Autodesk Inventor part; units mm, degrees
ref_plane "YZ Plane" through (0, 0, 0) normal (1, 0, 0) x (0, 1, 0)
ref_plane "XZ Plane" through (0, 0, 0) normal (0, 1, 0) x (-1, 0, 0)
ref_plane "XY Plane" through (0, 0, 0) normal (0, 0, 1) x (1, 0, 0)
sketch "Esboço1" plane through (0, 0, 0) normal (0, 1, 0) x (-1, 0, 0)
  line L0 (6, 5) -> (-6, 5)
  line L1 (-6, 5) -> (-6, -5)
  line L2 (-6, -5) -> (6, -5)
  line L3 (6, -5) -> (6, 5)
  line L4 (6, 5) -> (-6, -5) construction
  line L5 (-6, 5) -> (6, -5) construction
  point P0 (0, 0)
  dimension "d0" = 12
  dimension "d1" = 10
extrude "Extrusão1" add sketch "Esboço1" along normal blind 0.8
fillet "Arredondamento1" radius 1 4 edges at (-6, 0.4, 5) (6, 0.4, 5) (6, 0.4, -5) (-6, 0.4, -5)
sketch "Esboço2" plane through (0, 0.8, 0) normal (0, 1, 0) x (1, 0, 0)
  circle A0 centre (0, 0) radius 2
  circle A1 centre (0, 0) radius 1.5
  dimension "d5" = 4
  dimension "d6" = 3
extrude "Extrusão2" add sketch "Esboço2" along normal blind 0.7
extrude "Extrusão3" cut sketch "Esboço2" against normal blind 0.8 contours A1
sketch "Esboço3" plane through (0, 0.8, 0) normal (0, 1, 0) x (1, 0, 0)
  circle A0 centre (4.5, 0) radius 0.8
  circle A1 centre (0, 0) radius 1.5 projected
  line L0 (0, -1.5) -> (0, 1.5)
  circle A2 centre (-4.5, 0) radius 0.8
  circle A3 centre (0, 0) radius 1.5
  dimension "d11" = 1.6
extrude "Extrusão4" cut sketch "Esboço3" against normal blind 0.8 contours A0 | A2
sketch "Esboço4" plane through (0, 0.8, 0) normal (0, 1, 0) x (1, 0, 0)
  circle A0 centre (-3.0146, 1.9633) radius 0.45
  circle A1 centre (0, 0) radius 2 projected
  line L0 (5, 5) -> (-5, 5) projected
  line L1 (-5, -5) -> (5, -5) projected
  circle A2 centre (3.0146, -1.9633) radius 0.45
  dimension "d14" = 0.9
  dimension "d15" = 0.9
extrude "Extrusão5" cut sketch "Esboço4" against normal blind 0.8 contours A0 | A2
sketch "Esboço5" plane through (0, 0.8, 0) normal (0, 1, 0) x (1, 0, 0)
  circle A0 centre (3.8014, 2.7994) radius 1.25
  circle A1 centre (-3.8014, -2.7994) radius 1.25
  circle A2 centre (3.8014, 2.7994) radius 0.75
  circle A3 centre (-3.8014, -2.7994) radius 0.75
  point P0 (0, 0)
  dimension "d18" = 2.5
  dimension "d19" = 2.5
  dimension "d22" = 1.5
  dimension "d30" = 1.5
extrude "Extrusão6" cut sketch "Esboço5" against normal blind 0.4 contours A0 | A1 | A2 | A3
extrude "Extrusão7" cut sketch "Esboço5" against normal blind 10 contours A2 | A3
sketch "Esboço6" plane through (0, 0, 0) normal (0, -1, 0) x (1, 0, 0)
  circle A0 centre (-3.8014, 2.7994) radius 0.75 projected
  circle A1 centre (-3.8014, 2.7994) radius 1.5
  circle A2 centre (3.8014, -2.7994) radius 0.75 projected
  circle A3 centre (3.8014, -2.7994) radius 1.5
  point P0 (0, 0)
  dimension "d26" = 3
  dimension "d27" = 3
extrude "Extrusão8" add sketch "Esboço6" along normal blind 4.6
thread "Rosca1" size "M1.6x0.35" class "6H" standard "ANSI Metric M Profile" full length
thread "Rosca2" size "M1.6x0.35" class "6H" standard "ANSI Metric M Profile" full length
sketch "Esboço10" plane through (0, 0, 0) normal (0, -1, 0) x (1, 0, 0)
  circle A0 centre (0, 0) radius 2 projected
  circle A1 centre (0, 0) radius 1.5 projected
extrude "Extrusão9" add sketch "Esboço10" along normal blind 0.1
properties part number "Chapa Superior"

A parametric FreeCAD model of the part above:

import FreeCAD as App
import Part
import Sketcher


def edges_at(feature, points):
    """Names of the edges that pass closest to the given points."""
    edges = feature.Shape.Edges
    near = lambda p: min(range(len(edges)), key=lambda i: edges[i].distToShape(Part.Vertex(*p))[0])
    return sorted({f"Edge{near(p) + 1}" for p in points})


def add_polygon(sketch, points):
    """Adds a closed chain of lines whose ends are joined by coincident constraints."""
    first, n = sketch.GeometryCount, len(points)
    for a, b in zip(points, points[1:] + points[:1]):
        sketch.addGeometry(Part.LineSegment(App.Vector(*a, 0), App.Vector(*b, 0)), False)
    for i in range(n):
        sketch.addConstraint(Sketcher.Constraint("Coincident", first + i, 2, first + (i + 1) % n, 1))

doc = App.newDocument("Part")
body = doc.addObject("PartDesign::Body", "Body")

sketch1 = body.newObject("Sketcher::SketchObject", "Sketch")
sketch1.AttachmentSupport = (doc.getObject("XZ_Plane"), [""])
sketch1.MapMode = "FlatFace"
add_polygon(sketch1, [(-6, -5), (-6, 5), (6, 5), (6, -5)])
sketch1.addConstraint([
    Sketcher.Constraint("Vertical", 0),
    Sketcher.Constraint("Horizontal", 1),
    Sketcher.Constraint("Vertical", 2),
    Sketcher.Constraint("Horizontal", 3),
    Sketcher.Constraint("Symmetric", 0, 2, 2, 2, -1, 1),
    Sketcher.Constraint("DistanceX", 1, 1, 1, 2, 12.0),
    Sketcher.Constraint("DistanceY", 0, 1, 0, 2, 10.0),
])
pad1 = body.newObject("PartDesign::Pad", "Pad")
pad1.Profile = sketch1
pad1.Length = 0.8
pad1.Reversed = True
doc.recompute()

fillet = body.newObject("PartDesign::Fillet", "Fillet")
fillet.Base = (pad1, edges_at(pad1, [
    (-6, 0.4, 5),
    (6, 0.4, 5),
    (6, 0.4, -5),
    (-6, 0.4, -5),
]))
fillet.Radius = 1

sketch2 = body.newObject("Sketcher::SketchObject", "Sketch001")
sketch2.AttachmentSupport = (doc.getObject("XZ_Plane"), [""])
sketch2.MapMode = "FlatFace"
sketch2.AttachmentOffset = App.Placement(App.Vector(0, 0, -0.8), App.Rotation())
sketch2.addGeometry([
    Part.Circle(App.Vector(0, 0, 0), App.Vector(0, 0, 1), 2),
    Part.Circle(App.Vector(0, 0, 0), App.Vector(0, 0, 1), 1.5),
], False)
sketch2.addConstraint([
    Sketcher.Constraint("Coincident", 0, 3, -1, 1),
    Sketcher.Constraint("Coincident", 1, 3, -1, 1),
    Sketcher.Constraint("Diameter", 0, 4.0),
    Sketcher.Constraint("Diameter", 1, 3.0),
])
pad2 = body.newObject("PartDesign::Pad", "Pad001")
pad2.Profile = sketch2
pad2.Length = 0.7
pad2.Reversed = True

sketch3 = body.newObject("Sketcher::SketchObject", "Sketch002")
sketch3.AttachmentSupport = (doc.getObject("XZ_Plane"), [""])
sketch3.MapMode = "FlatFace"
sketch3.AttachmentOffset = App.Placement(App.Vector(0, 0, -0.8), App.Rotation())
sketch3.addGeometry(Part.Circle(App.Vector(0, 0, 0), App.Vector(0, 0, 1), 1.5), False)
sketch3.addConstraint([
    Sketcher.Constraint("Coincident", 0, 3, -1, 1),
    Sketcher.Constraint("Diameter", 0, 3.0),
])
pocket1 = body.newObject("PartDesign::Pocket", "Pocket")
pocket1.Profile = sketch3
pocket1.Length = 0.8
pocket1.Reversed = True

sketch4 = body.newObject("Sketcher::SketchObject", "Sketch003")
sketch4.AttachmentSupport = (doc.getObject("XZ_Plane"), [""])
sketch4.MapMode = "FlatFace"
sketch4.AttachmentOffset = App.Placement(App.Vector(0, 0, -0.8), App.Rotation())
sketch4.addGeometry([
    Part.Circle(App.Vector(4.5, 0, 0), App.Vector(0, 0, 1), 0.8),
    Part.Circle(App.Vector(-4.5, 0, 0), App.Vector(0, 0, 1), 0.8),
], False)
sketch4.addConstraint([
    Sketcher.Constraint("Equal", 0, 1),
    Sketcher.Constraint("Symmetric", 0, 3, 1, 3, -1, 1),
    Sketcher.Constraint("PointOnObject", 0, 3, -1),
    Sketcher.Constraint("Diameter", 0, 1.6),
    Sketcher.Constraint("DistanceX", 1, 3, 0, 3, 9.0),
])
pocket2 = body.newObject("PartDesign::Pocket", "Pocket001")
pocket2.Profile = sketch4
pocket2.Length = 0.8
pocket2.Reversed = True

sketch5 = body.newObject("Sketcher::SketchObject", "Sketch004")
sketch5.AttachmentSupport = (doc.getObject("XZ_Plane"), [""])
sketch5.MapMode = "FlatFace"
sketch5.AttachmentOffset = App.Placement(App.Vector(0, 0, -0.8), App.Rotation())
sketch5.addGeometry([
    Part.Circle(App.Vector(-3.0146, -1.9633, 0), App.Vector(0, 0, 1), 0.45),
    Part.Circle(App.Vector(3.0146, 1.9633, 0), App.Vector(0, 0, 1), 0.45),
], False)
sketch5.addConstraint([
    Sketcher.Constraint("Equal", 0, 1),
    Sketcher.Constraint("Symmetric", 0, 3, 1, 3, -1, 1),
    Sketcher.Constraint("Diameter", 0, 0.9),
    Sketcher.Constraint("DistanceX", 0, 3, -1, 1, 3.0146),
    Sketcher.Constraint("DistanceY", 0, 3, -1, 1, 1.9633),
])
pocket3 = body.newObject("PartDesign::Pocket", "Pocket002")
pocket3.Profile = sketch5
pocket3.Length = 0.8
pocket3.Reversed = True

sketch6 = body.newObject("Sketcher::SketchObject", "Sketch005")
sketch6.AttachmentSupport = (doc.getObject("XZ_Plane"), [""])
sketch6.MapMode = "FlatFace"
sketch6.AttachmentOffset = App.Placement(App.Vector(0, 0, -0.8), App.Rotation())
sketch6.addGeometry([
    Part.Circle(App.Vector(3.8014, -2.7994, 0), App.Vector(0, 0, 1), 1.25),
    Part.Circle(App.Vector(-3.8014, 2.7994, 0), App.Vector(0, 0, 1), 1.25),
], False)
sketch6.addConstraint([
    Sketcher.Constraint("Equal", 0, 1),
    Sketcher.Constraint("Symmetric", 0, 3, 1, 3, -1, 1),
    Sketcher.Constraint("Diameter", 0, 2.5),
    Sketcher.Constraint("DistanceX", -1, 1, 0, 3, 3.8014),
    Sketcher.Constraint("DistanceY", 0, 3, -1, 1, 2.7994),
])
pocket4 = body.newObject("PartDesign::Pocket", "Pocket003")
pocket4.Profile = sketch6
pocket4.Length = 0.4
pocket4.Reversed = True

sketch7 = body.newObject("Sketcher::SketchObject", "Sketch006")
sketch7.AttachmentSupport = (doc.getObject("XZ_Plane"), [""])
sketch7.MapMode = "FlatFace"
sketch7.AttachmentOffset = App.Placement(App.Vector(0, 0, -0.8), App.Rotation())
sketch7.addGeometry([
    Part.Circle(App.Vector(3.8014, -2.7994, 0), App.Vector(0, 0, 1), 0.75),
    Part.Circle(App.Vector(-3.8014, 2.7994, 0), App.Vector(0, 0, 1), 0.75),
], False)
sketch7.addConstraint([
    Sketcher.Constraint("Equal", 0, 1),
    Sketcher.Constraint("Symmetric", 0, 3, 1, 3, -1, 1),
    Sketcher.Constraint("Diameter", 0, 1.5),
    Sketcher.Constraint("DistanceX", -1, 1, 0, 3, 3.8014),
    Sketcher.Constraint("DistanceY", 0, 3, -1, 1, 2.7994),
])
pocket5 = body.newObject("PartDesign::Pocket", "Pocket004")
pocket5.Profile = sketch7
pocket5.Length = 10
pocket5.Reversed = True

sketch8 = body.newObject("Sketcher::SketchObject", "Sketch007")
sketch8.AttachmentSupport = (doc.getObject("XZ_Plane"), [""])
sketch8.MapMode = "FlatFace"
sketch8.addGeometry([
    Part.Circle(App.Vector(-3.8014, 2.7994, 0), App.Vector(0, 0, 1), 1.5),
    Part.Circle(App.Vector(-3.8014, 2.7994, 0), App.Vector(0, 0, 1), 0.75),
    Part.Circle(App.Vector(3.8014, -2.7994, 0), App.Vector(0, 0, 1), 1.5),
    Part.Circle(App.Vector(3.8014, -2.7994, 0), App.Vector(0, 0, 1), 0.75),
], False)
sketch8.addConstraint([
    Sketcher.Constraint("Coincident", 1, 3, 0, 3),
    Sketcher.Constraint("Coincident", 3, 3, 2, 3),
    Sketcher.Constraint("Equal", 0, 2),
    Sketcher.Constraint("Equal", 1, 3),
    Sketcher.Constraint("Symmetric", 0, 3, 2, 3, -1, 1),
    Sketcher.Constraint("Diameter", 0, 3.0),
    Sketcher.Constraint("Diameter", 1, 1.5),
    Sketcher.Constraint("DistanceX", 0, 3, -1, 1, 3.8014),
    Sketcher.Constraint("DistanceY", -1, 1, 0, 3, 2.7994),
])
pad3 = body.newObject("PartDesign::Pad", "Pad002")
pad3.Profile = sketch8
pad3.Length = 4.6

sketch9 = body.newObject("Sketcher::SketchObject", "Sketch008")
sketch9.AttachmentSupport = (doc.getObject("XZ_Plane"), [""])
sketch9.MapMode = "FlatFace"
sketch9.addGeometry([
    Part.Circle(App.Vector(0, 0, 0), App.Vector(0, 0, 1), 2),
    Part.Circle(App.Vector(0, 0, 0), App.Vector(0, 0, 1), 1.5),
], False)
sketch9.addConstraint([
    Sketcher.Constraint("Coincident", 0, 3, -1, 1),
    Sketcher.Constraint("Coincident", 1, 3, -1, 1),
    Sketcher.Constraint("Diameter", 0, 4.0),
    Sketcher.Constraint("Diameter", 1, 3.0),
])
pad4 = body.newObject("PartDesign::Pad", "Pad003")
pad4.Profile = sketch9
pad4.Length = 0.1

doc.recompute()
